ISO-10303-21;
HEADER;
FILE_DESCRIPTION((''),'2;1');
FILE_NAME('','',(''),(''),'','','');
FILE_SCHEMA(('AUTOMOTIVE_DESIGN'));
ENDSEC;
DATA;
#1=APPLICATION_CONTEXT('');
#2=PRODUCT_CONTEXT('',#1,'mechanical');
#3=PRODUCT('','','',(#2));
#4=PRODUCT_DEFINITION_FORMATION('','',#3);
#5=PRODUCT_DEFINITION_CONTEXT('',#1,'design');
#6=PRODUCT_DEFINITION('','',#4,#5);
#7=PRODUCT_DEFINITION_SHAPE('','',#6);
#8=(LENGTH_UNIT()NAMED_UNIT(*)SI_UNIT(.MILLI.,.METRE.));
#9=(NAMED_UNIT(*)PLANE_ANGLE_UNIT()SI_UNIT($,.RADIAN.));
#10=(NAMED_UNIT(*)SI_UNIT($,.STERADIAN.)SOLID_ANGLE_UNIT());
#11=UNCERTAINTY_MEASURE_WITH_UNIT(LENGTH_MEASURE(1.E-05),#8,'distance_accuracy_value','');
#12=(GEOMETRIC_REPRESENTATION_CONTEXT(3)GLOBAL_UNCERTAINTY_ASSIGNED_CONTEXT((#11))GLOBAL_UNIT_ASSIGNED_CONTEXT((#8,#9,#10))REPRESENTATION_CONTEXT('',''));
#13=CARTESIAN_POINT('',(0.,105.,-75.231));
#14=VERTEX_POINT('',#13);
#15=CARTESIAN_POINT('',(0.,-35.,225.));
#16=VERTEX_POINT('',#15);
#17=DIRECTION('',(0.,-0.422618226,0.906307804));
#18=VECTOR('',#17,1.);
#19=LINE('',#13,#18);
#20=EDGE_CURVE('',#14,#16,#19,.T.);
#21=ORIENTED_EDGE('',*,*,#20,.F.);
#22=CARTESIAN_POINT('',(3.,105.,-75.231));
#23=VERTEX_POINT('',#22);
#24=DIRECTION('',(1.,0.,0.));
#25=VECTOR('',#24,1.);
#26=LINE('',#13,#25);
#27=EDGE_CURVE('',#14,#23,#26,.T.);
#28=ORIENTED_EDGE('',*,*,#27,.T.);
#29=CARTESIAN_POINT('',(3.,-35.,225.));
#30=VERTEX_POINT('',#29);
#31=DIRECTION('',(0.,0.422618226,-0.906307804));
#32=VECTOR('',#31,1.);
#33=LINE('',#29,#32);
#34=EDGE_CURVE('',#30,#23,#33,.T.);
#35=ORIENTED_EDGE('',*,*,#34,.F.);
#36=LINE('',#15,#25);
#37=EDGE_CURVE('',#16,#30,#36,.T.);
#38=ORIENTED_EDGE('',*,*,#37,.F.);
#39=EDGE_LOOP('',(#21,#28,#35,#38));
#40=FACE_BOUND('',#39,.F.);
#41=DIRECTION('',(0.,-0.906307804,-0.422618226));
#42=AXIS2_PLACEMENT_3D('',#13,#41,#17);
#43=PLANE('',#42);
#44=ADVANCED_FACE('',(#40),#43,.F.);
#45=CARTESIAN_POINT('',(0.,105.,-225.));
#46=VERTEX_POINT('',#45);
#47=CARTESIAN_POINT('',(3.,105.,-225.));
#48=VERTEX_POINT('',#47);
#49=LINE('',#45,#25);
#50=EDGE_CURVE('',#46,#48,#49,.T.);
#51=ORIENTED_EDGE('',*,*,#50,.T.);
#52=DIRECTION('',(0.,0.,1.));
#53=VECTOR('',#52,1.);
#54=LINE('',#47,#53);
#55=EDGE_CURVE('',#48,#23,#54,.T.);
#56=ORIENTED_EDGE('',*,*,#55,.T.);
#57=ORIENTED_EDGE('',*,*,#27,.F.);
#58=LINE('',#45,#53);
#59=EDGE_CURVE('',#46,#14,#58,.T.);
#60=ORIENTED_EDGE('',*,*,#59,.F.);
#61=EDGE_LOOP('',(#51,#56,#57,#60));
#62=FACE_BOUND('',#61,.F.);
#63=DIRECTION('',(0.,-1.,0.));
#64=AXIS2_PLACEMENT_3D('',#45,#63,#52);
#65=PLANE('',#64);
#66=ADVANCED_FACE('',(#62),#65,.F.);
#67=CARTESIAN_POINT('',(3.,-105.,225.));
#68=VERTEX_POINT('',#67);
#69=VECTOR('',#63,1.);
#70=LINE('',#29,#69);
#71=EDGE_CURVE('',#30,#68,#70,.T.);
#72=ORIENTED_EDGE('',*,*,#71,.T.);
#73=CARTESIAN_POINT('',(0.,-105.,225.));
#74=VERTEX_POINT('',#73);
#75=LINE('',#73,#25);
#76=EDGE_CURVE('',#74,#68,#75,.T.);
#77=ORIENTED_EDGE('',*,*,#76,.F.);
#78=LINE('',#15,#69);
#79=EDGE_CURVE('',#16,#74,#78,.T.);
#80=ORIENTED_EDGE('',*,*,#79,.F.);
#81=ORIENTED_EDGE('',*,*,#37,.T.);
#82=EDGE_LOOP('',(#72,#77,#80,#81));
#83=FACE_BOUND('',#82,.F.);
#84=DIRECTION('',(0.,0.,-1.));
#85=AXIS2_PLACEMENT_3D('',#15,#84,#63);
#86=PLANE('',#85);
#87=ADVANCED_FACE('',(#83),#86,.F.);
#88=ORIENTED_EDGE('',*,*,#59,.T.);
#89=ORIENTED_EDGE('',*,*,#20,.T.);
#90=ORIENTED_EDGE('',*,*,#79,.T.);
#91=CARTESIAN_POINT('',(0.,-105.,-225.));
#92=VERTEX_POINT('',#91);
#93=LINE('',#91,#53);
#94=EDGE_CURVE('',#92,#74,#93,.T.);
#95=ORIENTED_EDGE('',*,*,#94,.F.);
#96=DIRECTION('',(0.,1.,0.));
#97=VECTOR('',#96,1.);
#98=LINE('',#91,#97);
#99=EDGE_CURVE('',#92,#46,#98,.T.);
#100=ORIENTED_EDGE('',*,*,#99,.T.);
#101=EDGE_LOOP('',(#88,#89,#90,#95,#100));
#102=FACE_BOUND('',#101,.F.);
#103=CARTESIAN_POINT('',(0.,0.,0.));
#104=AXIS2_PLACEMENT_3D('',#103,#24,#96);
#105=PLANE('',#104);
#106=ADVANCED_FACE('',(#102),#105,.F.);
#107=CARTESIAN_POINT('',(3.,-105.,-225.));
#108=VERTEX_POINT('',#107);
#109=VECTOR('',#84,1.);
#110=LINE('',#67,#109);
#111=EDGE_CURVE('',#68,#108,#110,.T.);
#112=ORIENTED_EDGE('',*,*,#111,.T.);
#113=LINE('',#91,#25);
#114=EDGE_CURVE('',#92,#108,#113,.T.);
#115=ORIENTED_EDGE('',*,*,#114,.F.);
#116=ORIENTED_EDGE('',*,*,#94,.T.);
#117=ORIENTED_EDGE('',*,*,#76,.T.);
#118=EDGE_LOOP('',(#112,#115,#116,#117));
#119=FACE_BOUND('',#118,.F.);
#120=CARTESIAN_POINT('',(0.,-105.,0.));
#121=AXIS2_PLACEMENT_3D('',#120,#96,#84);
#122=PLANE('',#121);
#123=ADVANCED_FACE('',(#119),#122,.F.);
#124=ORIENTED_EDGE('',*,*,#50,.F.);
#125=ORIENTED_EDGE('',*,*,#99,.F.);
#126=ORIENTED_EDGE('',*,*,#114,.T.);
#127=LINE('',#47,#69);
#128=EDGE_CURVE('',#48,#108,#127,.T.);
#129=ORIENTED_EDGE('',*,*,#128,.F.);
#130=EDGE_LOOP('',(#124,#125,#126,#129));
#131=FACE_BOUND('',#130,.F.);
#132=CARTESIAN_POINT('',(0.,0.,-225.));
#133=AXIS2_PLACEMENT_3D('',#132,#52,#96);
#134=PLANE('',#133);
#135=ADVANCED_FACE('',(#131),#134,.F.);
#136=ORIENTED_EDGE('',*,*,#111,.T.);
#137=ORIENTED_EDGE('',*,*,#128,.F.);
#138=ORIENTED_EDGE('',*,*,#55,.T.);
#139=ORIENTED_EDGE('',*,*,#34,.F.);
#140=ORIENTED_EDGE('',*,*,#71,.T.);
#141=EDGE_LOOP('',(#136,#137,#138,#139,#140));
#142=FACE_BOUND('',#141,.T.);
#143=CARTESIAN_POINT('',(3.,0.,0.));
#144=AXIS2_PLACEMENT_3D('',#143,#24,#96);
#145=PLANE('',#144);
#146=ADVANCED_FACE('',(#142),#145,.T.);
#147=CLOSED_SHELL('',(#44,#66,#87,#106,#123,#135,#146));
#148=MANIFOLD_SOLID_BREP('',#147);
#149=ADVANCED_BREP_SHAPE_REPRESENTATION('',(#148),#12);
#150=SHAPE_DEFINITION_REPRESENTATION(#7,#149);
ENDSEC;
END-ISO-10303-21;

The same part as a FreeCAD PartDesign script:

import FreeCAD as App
import Part
import Sketcher

V = App.Vector
Q = App.Units.Quantity


def add_polygon(sketch, points):
    """Adds a closed chain of lines whose ends are joined by coincident constraints."""
    first, n = sketch.GeometryCount, len(points)
    for a, b in zip(points, points[1:] + points[:1]):
        sketch.addGeometry(Part.LineSegment(App.Vector(*a, 0), App.Vector(*b, 0)), False)
    for i in range(n):
        sketch.addConstraint(Sketcher.Constraint("Coincident", first + i, 2, first + (i + 1) % n, 1))

doc = App.newDocument("Part")
body = doc.addObject("PartDesign::Body", "Body")

sketch1 = body.newObject("Sketcher::SketchObject", "Sketch")
sketch1.AttachmentSupport = (doc.getObject("YZ_Plane"), [""])
sketch1.MapMode = "FlatFace"
add_polygon(sketch1, [(105, -225), (105, -75), (-35, 225), (-105, 225), (-105, -225)])
sketch1.addConstraint([
    Sketcher.Constraint("Vertical", 0),
    Sketcher.Constraint("Horizontal", 2),
    Sketcher.Constraint("Vertical", 3),
    Sketcher.Constraint("Horizontal", 4),
    Sketcher.Constraint("Symmetric", 2, 2, 4, 2, -1, 1),
    Sketcher.Constraint("DistanceX", 2, 2, 2, 1, 70.0),
    Sketcher.Constraint("DistanceX", 4, 1, 4, 2, 210.0),
    Sketcher.Constraint("DistanceY", 3, 2, 3, 1, 450.0),
    Sketcher.Constraint("Angle", 1, Q("115 deg")),
])
pad1 = body.newObject("PartDesign::Pad", "Pad")
pad1.Profile = sketch1
pad1.Length = 3

doc.recompute()
